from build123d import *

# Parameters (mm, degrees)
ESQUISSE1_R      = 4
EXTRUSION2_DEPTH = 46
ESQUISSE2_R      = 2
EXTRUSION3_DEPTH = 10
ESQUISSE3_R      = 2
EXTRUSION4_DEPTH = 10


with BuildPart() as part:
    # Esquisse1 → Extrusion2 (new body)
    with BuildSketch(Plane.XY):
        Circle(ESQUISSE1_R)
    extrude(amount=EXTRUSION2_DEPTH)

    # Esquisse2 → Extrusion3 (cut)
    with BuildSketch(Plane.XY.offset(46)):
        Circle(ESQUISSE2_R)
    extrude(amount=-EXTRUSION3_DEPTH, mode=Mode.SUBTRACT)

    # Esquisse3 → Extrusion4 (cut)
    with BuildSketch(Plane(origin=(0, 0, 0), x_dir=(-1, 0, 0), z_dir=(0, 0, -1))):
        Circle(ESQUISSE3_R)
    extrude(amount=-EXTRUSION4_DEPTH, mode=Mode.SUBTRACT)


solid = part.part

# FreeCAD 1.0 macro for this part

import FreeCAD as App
import Part
import Sketcher

V = App.Vector

doc = App.newDocument("Part")
body = doc.addObject("PartDesign::Body", "Body")

sketch1 = body.newObject("Sketcher::SketchObject", "Sketch")
sketch1.AttachmentSupport = (doc.getObject("XY_Plane"), [""])
sketch1.MapMode = "FlatFace"
sketch1.addGeometry(Part.Circle(V(0, 0, 0), V(0, 0, 1), 4), False)
sketch1.addConstraint(Sketcher.Constraint("Coincident", 0, 3, -1, 1))
sketch1.addConstraint(Sketcher.Constraint("Diameter", 0, 8.0))
pad1 = body.newObject("PartDesign::Pad", "Pad")
pad1.Profile = sketch1
pad1.Length = 46

sketch2 = body.newObject("Sketcher::SketchObject", "Sketch001")
sketch2.AttachmentSupport = (doc.getObject("XY_Plane"), [""])
sketch2.MapMode = "FlatFace"
sketch2.AttachmentOffset = App.Placement(V(0, 0, 46), App.Rotation())
sketch2.addGeometry(Part.Circle(V(0, 0, 0), V(0, 0, 1), 2), False)
sketch2.addConstraint(Sketcher.Constraint("Coincident", 0, 3, -1, 1))
sketch2.addConstraint(Sketcher.Constraint("Diameter", 0, 4.0))
pocket1 = body.newObject("PartDesign::Pocket", "Pocket")
pocket1.Profile = sketch2
pocket1.Length = 10

sketch3 = body.newObject("Sketcher::SketchObject", "Sketch002")
sketch3.AttachmentSupport = (doc.getObject("XY_Plane"), [""])
sketch3.MapMode = "FlatFace"
sketch3.addGeometry(Part.Circle(V(0, 0, 0), V(0, 0, 1), 2), False)
sketch3.addConstraint(Sketcher.Constraint("Coincident", 0, 3, -1, 1))
sketch3.addConstraint(Sketcher.Constraint("Diameter", 0, 4.0))
pocket2 = body.newObject("PartDesign::Pocket", "Pocket001")
pocket2.Profile = sketch3
pocket2.Length = 10
pocket2.Reversed = True

doc.recompute()
